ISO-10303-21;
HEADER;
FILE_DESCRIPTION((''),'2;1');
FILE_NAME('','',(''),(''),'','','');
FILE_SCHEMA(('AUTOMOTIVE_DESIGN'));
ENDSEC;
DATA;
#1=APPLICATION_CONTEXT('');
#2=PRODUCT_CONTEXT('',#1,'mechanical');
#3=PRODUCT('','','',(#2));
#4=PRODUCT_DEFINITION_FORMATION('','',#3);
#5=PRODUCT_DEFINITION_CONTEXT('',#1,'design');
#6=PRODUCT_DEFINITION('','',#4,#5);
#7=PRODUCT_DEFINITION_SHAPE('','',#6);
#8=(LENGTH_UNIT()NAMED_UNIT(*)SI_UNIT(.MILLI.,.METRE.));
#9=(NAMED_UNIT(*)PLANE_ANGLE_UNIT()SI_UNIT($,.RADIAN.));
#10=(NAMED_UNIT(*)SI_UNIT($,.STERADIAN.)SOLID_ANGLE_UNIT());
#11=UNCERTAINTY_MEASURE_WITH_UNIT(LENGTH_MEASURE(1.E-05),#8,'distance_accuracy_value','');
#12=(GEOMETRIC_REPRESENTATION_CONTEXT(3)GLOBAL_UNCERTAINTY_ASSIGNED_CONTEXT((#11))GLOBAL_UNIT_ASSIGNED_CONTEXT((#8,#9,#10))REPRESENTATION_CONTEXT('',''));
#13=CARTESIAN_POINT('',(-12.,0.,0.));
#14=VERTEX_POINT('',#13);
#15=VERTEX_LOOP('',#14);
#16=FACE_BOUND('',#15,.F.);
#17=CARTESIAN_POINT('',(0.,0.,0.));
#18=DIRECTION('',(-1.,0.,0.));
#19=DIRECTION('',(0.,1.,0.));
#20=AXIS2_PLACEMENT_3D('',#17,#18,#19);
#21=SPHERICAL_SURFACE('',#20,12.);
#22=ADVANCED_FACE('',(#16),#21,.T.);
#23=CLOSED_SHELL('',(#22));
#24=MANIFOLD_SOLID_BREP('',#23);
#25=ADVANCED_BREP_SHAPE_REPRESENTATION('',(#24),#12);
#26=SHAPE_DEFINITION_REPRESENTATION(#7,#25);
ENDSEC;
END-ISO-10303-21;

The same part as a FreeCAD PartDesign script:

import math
import FreeCAD as App
import Part
import Sketcher

doc = App.newDocument("Part")
params = doc.addObject("Spreadsheet::Sheet", "Params")
for row, (alias, value) in enumerate([
    ("sketch1_radius", "12 mm"),
    ("revolution_angle", "360 deg"),
], start=1):
    params.set(f"A{row}", alias)
    params.set(f"B{row}", "=" + value)
    params.setAlias(f"B{row}", alias)

body = doc.addObject("PartDesign::Body", "Body")

# Sketch on XY plane
sketch1 = body.newObject("Sketcher::SketchObject", "Sketch")
sketch1.AttachmentSupport = (doc.getObject("XY_Plane"), [""])
sketch1.MapMode = "FlatFace"
sketch1.addGeometry(Part.LineSegment(App.Vector(-12, 0, 0), App.Vector(12, 0, 0)), False)
sketch1.addGeometry(Part.ArcOfCircle(Part.Circle(App.Vector(0, 0, 0), App.Vector(0, 0, 1), 12), math.radians(0), math.radians(180)), False)
sketch1.addConstraint(Sketcher.Constraint("Coincident", 0, 1, 1, 2))
sketch1.addConstraint(Sketcher.Constraint("Coincident", 1, 1, 0, 2))
sketch1.addConstraint(Sketcher.Constraint("Horizontal", 0))
sketch1.addConstraint(Sketcher.Constraint("Coincident", 1, 3, -1, 1))
sketch1.addConstraint(Sketcher.Constraint("PointOnObject", 0, 1, -1))
sketch1.addConstraint(Sketcher.Constraint("Radius", 1, 12.0))
sketch1.setExpression("Constraints[5]", "Params.sketch1_radius")
revolution = body.newObject("PartDesign::Revolution", "Revolution")
revolution.Profile = sketch1
revolution.ReferenceAxis = (sketch1, ["H_Axis"])
revolution.setExpression("Angle", "Params.revolution_angle")

doc.recompute()
